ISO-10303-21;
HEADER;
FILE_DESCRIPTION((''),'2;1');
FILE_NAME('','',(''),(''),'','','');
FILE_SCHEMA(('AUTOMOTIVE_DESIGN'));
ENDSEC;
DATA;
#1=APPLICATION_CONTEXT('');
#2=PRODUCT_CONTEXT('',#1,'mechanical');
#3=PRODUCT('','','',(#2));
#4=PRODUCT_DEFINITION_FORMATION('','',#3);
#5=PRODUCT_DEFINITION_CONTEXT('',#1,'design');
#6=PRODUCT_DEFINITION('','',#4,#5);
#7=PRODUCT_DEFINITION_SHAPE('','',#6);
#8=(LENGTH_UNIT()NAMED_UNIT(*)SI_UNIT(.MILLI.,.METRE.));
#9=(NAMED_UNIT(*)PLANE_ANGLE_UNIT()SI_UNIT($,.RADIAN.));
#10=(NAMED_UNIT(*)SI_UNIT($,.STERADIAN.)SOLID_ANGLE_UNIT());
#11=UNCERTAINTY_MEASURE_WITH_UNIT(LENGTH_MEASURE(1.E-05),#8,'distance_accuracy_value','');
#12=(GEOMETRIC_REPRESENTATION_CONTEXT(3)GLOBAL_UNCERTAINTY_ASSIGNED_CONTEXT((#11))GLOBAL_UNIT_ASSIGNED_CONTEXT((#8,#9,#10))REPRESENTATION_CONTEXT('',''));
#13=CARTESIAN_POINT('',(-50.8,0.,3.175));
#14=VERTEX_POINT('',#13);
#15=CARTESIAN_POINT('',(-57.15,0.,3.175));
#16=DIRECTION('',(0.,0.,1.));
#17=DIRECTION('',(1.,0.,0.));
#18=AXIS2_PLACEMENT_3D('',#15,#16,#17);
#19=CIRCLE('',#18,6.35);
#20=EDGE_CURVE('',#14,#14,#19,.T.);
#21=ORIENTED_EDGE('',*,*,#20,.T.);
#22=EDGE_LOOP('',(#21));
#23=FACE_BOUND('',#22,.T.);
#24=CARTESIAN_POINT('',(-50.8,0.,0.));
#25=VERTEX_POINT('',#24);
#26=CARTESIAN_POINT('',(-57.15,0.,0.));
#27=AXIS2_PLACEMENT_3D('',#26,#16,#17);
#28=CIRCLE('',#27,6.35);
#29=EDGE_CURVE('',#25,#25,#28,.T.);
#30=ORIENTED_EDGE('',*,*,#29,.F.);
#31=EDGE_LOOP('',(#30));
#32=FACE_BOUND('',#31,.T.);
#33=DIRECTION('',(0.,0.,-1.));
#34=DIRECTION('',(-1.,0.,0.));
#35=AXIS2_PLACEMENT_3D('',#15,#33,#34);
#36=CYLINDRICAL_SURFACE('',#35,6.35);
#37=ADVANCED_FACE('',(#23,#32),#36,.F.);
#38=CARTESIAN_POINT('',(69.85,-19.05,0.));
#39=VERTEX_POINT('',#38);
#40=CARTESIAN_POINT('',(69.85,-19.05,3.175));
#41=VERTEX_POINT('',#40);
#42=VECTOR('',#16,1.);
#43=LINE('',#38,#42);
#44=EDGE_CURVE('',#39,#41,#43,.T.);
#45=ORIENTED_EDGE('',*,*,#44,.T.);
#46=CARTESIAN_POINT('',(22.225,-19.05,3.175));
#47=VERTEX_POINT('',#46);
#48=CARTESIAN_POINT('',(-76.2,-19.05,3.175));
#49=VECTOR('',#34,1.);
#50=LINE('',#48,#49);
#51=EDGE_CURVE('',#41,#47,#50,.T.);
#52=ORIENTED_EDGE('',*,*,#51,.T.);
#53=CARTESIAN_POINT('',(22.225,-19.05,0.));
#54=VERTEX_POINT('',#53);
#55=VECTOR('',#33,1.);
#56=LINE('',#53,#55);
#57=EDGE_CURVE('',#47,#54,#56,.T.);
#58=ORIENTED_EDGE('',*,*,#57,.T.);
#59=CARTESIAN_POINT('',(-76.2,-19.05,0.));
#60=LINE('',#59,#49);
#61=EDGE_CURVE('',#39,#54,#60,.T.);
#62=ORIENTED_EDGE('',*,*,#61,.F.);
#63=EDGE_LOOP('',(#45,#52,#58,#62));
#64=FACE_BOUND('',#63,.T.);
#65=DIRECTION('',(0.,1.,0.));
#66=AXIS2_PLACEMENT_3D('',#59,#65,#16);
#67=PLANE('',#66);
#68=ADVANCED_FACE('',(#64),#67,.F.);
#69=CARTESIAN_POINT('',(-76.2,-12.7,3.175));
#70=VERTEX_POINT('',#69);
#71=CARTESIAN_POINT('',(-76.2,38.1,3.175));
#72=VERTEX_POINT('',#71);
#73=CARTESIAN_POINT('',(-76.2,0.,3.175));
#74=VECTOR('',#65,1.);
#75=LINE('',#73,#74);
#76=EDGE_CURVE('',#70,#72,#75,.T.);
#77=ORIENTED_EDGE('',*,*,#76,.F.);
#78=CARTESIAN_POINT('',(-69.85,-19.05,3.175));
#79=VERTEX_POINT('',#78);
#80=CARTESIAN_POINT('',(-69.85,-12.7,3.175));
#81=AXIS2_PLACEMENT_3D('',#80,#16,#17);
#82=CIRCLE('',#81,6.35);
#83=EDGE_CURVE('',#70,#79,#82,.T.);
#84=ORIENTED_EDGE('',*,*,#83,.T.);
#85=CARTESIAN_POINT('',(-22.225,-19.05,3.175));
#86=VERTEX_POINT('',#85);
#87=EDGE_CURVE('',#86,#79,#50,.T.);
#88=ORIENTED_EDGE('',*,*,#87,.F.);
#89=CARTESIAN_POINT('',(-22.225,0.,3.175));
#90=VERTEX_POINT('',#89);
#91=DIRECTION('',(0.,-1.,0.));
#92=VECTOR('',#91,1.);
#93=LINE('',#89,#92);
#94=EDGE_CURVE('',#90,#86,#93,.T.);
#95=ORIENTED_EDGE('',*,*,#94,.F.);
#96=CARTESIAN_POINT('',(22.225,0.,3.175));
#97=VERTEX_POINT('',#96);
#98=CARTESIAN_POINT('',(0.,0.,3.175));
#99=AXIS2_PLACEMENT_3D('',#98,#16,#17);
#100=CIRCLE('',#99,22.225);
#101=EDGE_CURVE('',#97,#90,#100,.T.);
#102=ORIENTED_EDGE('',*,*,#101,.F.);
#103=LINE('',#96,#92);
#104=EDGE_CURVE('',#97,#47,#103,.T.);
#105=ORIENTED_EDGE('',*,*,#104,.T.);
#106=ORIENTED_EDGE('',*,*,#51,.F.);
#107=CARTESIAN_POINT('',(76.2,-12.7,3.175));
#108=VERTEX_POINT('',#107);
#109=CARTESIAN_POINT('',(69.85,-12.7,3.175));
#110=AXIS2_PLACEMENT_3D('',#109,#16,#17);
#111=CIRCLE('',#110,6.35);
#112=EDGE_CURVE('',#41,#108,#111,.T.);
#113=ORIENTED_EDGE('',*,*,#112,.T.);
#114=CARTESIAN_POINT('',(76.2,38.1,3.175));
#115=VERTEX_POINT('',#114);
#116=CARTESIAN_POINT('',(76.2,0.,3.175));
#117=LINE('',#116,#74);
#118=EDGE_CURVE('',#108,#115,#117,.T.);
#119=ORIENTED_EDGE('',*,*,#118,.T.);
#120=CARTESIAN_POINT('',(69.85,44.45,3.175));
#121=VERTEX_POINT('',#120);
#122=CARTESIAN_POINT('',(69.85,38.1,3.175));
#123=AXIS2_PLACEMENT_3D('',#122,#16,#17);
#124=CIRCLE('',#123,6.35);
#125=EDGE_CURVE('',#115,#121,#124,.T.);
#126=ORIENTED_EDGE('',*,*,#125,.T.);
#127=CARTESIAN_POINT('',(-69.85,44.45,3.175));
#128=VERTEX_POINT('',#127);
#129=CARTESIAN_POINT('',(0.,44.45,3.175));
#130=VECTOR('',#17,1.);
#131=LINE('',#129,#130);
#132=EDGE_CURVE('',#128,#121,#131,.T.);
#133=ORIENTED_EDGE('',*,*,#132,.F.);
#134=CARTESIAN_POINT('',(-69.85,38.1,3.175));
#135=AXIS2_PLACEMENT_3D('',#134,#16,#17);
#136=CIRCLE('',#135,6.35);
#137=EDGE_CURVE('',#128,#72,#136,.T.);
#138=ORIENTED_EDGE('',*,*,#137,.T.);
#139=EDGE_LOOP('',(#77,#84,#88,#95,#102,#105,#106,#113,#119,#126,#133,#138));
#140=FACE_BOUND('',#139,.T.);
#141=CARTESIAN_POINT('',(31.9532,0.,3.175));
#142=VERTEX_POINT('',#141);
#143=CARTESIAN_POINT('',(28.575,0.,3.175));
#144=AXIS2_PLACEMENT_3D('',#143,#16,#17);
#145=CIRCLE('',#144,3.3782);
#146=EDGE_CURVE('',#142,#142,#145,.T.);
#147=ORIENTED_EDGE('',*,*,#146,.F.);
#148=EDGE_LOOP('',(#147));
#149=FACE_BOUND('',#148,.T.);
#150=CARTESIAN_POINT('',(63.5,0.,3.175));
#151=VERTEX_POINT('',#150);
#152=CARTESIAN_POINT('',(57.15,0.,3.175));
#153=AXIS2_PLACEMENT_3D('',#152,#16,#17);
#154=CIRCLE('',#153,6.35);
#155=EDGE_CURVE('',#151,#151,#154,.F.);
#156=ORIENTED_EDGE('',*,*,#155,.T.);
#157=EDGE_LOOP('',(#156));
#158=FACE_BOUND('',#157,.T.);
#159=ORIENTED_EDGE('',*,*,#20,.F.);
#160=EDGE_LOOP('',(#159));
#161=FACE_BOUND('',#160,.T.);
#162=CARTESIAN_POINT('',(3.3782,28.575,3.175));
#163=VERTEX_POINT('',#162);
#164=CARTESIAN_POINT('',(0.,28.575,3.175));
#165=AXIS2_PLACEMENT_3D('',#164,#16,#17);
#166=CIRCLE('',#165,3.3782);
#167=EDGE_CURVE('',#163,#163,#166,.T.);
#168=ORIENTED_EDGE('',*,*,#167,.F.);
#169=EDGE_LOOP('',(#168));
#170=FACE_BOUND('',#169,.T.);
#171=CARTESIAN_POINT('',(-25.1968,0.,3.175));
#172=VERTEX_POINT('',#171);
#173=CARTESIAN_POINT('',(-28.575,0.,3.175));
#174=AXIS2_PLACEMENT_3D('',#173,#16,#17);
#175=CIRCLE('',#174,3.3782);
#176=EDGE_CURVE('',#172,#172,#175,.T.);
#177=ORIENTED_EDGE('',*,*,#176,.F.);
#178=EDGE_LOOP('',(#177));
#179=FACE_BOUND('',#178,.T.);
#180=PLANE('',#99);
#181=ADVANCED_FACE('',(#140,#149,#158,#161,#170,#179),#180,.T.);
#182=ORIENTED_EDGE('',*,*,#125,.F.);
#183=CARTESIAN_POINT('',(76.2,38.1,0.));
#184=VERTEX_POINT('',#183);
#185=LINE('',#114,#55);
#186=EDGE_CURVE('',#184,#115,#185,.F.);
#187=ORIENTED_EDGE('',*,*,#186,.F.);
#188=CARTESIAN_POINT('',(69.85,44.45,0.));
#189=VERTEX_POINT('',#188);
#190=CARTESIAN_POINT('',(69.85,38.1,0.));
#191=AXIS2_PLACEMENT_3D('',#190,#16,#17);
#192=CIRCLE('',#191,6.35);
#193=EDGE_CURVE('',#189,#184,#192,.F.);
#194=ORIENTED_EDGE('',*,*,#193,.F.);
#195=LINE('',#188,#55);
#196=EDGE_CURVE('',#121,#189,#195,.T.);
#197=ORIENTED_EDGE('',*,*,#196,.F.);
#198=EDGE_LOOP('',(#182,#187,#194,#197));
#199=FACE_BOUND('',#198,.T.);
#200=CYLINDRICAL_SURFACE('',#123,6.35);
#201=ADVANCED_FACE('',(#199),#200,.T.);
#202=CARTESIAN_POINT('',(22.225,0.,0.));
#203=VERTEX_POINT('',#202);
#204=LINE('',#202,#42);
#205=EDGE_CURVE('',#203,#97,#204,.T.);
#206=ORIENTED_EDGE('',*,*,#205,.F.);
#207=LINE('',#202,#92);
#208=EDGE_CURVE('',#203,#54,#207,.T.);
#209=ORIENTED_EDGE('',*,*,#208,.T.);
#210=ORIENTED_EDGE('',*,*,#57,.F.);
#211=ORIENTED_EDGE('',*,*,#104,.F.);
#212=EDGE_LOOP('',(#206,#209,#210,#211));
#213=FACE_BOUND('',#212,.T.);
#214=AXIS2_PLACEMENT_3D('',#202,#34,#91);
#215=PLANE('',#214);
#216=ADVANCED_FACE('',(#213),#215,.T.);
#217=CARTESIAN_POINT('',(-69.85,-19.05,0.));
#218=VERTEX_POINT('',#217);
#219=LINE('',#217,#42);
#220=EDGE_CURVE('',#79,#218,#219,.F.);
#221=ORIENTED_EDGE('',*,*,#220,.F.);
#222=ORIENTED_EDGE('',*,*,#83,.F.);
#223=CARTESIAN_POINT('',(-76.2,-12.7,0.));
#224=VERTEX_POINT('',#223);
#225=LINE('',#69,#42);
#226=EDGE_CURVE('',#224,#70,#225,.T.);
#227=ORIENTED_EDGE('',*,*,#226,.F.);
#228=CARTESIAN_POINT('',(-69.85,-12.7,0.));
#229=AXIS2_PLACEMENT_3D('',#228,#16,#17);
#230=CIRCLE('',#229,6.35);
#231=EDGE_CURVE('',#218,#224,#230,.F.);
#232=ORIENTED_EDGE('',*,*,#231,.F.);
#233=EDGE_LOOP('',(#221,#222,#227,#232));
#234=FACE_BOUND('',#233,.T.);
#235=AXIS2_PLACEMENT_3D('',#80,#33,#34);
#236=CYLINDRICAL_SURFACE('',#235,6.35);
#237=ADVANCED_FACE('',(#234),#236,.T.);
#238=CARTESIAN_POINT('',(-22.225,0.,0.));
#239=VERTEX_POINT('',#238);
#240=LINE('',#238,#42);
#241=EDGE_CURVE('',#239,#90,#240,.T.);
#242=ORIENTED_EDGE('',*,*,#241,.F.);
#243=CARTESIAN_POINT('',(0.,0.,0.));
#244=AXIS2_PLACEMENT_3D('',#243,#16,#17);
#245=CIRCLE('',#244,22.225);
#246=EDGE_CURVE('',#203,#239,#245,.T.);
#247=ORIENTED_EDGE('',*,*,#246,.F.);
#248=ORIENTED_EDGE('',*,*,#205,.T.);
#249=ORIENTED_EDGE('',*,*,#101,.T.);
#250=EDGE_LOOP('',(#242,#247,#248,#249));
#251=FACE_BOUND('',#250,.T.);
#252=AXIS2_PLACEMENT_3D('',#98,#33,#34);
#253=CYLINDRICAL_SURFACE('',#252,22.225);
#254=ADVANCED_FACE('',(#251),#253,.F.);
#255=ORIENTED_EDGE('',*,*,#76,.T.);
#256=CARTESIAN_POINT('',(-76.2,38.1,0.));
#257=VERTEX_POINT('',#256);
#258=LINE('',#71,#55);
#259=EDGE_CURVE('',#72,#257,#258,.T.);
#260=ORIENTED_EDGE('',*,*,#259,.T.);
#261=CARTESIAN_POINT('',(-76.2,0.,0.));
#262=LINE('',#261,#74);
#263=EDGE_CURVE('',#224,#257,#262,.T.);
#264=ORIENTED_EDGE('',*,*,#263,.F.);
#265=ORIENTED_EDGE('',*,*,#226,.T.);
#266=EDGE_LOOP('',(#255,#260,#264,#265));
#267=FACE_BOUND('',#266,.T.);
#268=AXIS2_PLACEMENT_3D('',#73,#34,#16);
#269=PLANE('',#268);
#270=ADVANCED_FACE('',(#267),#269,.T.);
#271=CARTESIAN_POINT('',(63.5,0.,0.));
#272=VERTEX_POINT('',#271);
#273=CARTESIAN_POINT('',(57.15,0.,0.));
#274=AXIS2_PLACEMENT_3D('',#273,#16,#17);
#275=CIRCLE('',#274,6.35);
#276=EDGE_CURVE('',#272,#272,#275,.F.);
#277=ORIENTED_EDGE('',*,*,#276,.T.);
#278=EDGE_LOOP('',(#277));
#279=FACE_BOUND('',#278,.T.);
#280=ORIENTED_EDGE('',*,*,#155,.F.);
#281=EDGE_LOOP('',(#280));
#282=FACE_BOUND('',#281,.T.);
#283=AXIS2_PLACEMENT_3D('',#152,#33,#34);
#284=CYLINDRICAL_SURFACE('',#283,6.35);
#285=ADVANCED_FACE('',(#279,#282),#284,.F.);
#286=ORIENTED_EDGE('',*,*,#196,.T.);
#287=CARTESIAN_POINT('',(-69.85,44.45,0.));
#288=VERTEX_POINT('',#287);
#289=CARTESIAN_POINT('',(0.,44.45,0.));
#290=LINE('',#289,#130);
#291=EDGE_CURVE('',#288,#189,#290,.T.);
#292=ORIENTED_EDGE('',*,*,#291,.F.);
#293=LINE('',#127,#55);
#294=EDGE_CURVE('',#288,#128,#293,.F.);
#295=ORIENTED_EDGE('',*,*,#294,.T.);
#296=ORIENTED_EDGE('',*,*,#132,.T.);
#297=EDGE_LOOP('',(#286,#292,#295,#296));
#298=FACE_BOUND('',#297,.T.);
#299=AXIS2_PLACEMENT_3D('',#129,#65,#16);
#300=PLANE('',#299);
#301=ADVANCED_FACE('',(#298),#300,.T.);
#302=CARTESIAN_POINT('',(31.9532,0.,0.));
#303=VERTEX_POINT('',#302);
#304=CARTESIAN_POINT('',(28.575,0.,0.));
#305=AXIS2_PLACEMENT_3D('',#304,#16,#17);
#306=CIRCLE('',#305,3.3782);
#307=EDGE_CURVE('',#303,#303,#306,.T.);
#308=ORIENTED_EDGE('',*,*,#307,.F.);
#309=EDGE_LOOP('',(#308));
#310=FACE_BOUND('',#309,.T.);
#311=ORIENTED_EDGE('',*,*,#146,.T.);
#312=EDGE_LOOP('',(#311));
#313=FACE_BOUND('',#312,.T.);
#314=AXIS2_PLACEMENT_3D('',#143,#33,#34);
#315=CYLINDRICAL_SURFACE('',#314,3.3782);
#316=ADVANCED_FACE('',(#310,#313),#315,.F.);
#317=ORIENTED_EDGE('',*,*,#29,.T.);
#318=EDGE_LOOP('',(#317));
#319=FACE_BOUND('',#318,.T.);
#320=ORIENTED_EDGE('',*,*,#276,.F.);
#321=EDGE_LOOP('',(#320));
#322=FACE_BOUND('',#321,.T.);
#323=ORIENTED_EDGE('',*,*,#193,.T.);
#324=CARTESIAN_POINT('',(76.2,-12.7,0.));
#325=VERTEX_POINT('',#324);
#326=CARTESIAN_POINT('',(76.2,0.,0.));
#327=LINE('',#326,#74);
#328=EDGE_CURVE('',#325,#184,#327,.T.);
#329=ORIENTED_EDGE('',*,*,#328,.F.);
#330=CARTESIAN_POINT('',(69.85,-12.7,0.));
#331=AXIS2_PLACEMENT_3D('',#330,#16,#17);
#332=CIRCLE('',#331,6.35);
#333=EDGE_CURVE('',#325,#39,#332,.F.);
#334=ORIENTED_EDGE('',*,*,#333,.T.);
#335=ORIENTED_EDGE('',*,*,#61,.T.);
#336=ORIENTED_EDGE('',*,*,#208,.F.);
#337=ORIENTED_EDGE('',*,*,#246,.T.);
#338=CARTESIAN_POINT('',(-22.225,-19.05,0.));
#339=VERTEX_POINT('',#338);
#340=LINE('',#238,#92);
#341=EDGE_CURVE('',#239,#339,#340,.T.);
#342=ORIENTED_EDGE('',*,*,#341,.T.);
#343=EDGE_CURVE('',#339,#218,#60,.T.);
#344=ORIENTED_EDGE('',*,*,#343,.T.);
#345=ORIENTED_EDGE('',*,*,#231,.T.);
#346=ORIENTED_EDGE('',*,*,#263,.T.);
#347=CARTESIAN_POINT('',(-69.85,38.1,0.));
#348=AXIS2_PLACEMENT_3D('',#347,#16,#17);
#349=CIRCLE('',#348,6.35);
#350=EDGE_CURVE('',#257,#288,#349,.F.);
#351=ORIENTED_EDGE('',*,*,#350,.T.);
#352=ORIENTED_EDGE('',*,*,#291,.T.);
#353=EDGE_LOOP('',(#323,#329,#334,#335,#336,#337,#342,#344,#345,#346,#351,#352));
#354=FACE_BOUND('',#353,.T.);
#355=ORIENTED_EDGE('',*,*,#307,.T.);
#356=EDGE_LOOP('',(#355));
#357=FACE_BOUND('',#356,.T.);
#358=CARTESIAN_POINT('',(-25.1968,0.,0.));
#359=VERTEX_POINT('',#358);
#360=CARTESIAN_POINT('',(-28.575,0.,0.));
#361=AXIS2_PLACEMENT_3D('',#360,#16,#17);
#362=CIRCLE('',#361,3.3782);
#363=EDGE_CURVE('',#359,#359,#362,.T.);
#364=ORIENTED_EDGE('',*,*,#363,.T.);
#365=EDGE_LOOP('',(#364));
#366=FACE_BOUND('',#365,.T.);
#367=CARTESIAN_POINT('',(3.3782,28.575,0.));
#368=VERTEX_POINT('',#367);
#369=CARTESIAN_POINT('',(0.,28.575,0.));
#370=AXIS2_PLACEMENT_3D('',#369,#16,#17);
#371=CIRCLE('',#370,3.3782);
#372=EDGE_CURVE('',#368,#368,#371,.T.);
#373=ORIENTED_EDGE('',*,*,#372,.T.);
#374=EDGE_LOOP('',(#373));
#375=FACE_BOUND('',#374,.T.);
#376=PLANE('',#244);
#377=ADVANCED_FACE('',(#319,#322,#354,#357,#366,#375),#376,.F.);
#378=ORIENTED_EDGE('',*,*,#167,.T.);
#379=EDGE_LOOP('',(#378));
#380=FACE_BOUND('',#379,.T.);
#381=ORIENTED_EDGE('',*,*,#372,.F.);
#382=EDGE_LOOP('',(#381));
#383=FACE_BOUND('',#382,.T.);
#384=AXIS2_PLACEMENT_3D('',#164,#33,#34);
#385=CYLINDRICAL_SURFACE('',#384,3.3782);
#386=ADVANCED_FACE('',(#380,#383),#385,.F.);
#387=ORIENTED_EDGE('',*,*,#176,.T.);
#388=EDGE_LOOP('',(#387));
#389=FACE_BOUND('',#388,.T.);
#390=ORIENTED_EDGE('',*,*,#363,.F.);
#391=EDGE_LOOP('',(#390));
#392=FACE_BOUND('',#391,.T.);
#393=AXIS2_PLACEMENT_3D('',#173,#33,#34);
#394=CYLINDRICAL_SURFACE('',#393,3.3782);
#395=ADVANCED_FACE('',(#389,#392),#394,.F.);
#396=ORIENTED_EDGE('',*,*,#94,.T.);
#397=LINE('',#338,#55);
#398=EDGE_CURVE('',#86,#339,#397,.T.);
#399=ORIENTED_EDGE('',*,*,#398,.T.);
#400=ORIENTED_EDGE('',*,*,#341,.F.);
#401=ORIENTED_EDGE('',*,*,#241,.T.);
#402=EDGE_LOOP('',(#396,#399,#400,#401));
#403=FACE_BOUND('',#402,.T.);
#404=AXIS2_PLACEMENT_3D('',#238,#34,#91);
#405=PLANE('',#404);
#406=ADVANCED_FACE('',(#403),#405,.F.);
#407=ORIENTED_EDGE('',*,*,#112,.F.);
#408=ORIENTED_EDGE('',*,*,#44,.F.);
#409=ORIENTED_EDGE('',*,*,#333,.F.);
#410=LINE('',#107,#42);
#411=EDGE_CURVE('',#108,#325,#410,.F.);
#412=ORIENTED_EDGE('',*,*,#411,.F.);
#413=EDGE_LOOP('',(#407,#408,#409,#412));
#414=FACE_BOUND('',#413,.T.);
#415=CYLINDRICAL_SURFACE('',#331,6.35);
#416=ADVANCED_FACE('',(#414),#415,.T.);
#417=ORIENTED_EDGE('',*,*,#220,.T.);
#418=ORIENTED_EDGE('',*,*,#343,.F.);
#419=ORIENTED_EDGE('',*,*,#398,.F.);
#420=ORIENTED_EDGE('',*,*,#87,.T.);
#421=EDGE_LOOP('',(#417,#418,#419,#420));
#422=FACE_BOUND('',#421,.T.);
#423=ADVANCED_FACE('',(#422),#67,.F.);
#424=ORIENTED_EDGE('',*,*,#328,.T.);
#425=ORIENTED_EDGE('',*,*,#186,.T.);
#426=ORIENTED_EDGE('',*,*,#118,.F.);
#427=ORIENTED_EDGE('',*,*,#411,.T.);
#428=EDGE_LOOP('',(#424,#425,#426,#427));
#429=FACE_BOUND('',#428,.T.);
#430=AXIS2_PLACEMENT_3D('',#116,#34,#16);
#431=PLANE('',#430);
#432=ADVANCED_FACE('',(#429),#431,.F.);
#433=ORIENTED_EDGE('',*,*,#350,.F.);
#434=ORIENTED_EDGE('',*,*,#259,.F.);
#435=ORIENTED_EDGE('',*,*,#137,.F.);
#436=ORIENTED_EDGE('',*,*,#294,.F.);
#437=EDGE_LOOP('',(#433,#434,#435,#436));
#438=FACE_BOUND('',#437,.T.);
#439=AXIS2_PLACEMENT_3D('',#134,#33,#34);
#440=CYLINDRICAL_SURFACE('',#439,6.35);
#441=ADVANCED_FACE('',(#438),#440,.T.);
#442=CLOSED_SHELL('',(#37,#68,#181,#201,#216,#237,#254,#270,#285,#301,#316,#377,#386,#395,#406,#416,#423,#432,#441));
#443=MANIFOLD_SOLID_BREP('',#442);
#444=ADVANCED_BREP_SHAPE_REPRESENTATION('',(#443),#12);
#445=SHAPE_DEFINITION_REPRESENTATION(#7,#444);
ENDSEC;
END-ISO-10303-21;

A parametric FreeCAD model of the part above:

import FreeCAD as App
import Part
import Sketcher

V = App.Vector
Q = App.Units.Quantity


def edges_at(feature, points):
    """Names of the edges that pass closest to the given points."""
    edges = feature.Shape.Edges
    near = lambda p: min(range(len(edges)), key=lambda i: edges[i].distToShape(Part.Vertex(*p))[0])
    return sorted({f"Edge{near(p) + 1}" for p in points})


def add_polygon(sketch, points):
    """Adds a closed chain of lines whose ends are joined by coincident constraints."""
    first, n = sketch.GeometryCount, len(points)
    for a, b in zip(points, points[1:] + points[:1]):
        sketch.addGeometry(Part.LineSegment(App.Vector(*a, 0), App.Vector(*b, 0)), False)
    for i in range(n):
        sketch.addConstraint(Sketcher.Constraint("Coincident", first + i, 2, first + (i + 1) % n, 1))

doc = App.newDocument("Part")
body = doc.addObject("PartDesign::Body", "Body")

sketch1 = doc.addObject("Sketcher::SketchObject", "Sketch")
body.addObject(sketch1)
sketch1.AttachmentSupport = (doc.XY_Plane, [""])
sketch1.MapMode = "FlatFace"
add_polygon(sketch1, [(-76.2, 44.5), (-76.2, -44.5), (76.2, -44.5), (76.2, 44.5)])
sketch1.addGeometry(Part.Circle(V(0, -28.6, 0), V(0, 0, 1), 3.4), False)
sketch1.addGeometry(Part.Circle(V(-57.1, 0, 0), V(0, 0, 1), 6.3), False)
sketch1.addGeometry(Part.Circle(V(-28.6, 0, 0), V(0, 0, 1), 3.4), False)
sketch1.addGeometry(Part.Circle(V(0, 0, 0), V(0, 0, 1), 22.2), False)
sketch1.addGeometry(Part.Circle(V(28.6, 0, 0), V(0, 0, 1), 3.4), False)
sketch1.addGeometry(Part.Circle(V(57.1, 0, 0), V(0, 0, 1), 6.3), False)
sketch1.addGeometry(Part.Circle(V(0, 28.6, 0), V(0, 0, 1), 3.4), False)
sketch1.addConstraint([
    Sketcher.Constraint("Vertical", 0),
    Sketcher.Constraint("Horizontal", 1),
    Sketcher.Constraint("Vertical", 2),
    Sketcher.Constraint("Horizontal", 3),
    Sketcher.Constraint("Coincident", 7, 3, -1, 1),
    Sketcher.Constraint("Equal", 4, 6),
    Sketcher.Constraint("Equal", 6, 8),
    Sketcher.Constraint("Equal", 5, 9),
    Sketcher.Constraint("Equal", 8, 10),
    Sketcher.Constraint("Symmetric", 6, 3, 8, 3, -1, 1),
    Sketcher.Constraint("Symmetric", 5, 3, 9, 3, -1, 1),
    Sketcher.Constraint("Symmetric", 4, 3, 10, 3, -1, 1),
    Sketcher.Constraint("Symmetric", 0, 2, 2, 2, -1, 1),
    Sketcher.Constraint("PointOnObject", 4, 3, -2),
    Sketcher.Constraint("PointOnObject", 5, 3, -1),
    Sketcher.Constraint("PointOnObject", 6, 3, -1),
    Sketcher.Constraint("Diameter", 5, Q("0.5 in")),
    Sketcher.Constraint("Diameter", 7, Q("1.75 in")),
    Sketcher.Constraint("DistanceX", 1, 1, 1, 2, Q("6 in")),
    Sketcher.Constraint("Diameter", 4, Q("0.266 in")),
    Sketcher.Constraint("DistanceY", 0, 2, 0, 1, Q("3.5 in")),
    Sketcher.Constraint("DistanceX", 5, 3, 9, 3, Q("4.5 in")),
    Sketcher.Constraint("DistanceX", 6, 3, 8, 3, Q("2.25 in")),
    Sketcher.Constraint("DistanceY", 4, 3, 10, 3, Q("2.25 in")),
])
pad1 = doc.addObject("PartDesign::Pad", "Pad")
body.addObject(pad1)
pad1.Profile = sketch1
pad1.Length = Q("0.125 in")

sketch2 = doc.addObject("Sketcher::SketchObject", "Sketch001")
body.addObject(sketch2)
sketch2.AttachmentSupport = (doc.XY_Plane, [""])
sketch2.MapMode = "FlatFace"
sketch2.AttachmentOffset = App.Placement(V(0, 0, 0.125 * 25.4), App.Rotation())
add_polygon(sketch2, [(-28.6, -20.3), (-28.6, -44.5), (28.6, -44.5), (28.6, -20.3), (22.2, -20.3), (22.2, 0), (-22.2, 0), (-22.2, -20.3)])
sketch2.addGeometry(Part.Circle(V(0, -28.6, 0), V(0, 0, 1), 3.4), False)
sketch2.addConstraint([
    Sketcher.Constraint("Vertical", 0),
    Sketcher.Constraint("Horizontal", 1),
    Sketcher.Constraint("Vertical", 2),
    Sketcher.Constraint("Horizontal", 3),
    Sketcher.Constraint("Vertical", 4),
    Sketcher.Constraint("Horizontal", 5),
    Sketcher.Constraint("Vertical", 6),
    Sketcher.Constraint("Horizontal", 7),
    Sketcher.Constraint("Symmetric", 4, 2, 5, 2, -1, 1),
    Sketcher.Constraint("Symmetric", 2, 2, 7, 2, -2),
    Sketcher.Constraint("PointOnObject", 8, 3, -2),
    Sketcher.Constraint("Diameter", 8, Q("0.266 in")),
    Sketcher.Constraint("DistanceY", 4, 1, 4, 2, Q("0.8 in")),
    Sketcher.Constraint("DistanceX", 0, 2, 3, 2, Q("2 in")),
    Sketcher.Constraint("DistanceX", 1, 1, 1, 2, Q("2.25 in")),
    Sketcher.Constraint("DistanceY", 0, 2, 0, 1, Q("0.95 in")),
    Sketcher.Constraint("DistanceY", 8, 3, -1, 1, Q("1.125 in")),
])
pocket1 = doc.addObject("PartDesign::Pocket", "Pocket")
body.addObject(pocket1)
pocket1.Profile = sketch2
pocket1.Type = "ThroughAll"

sketch3 = doc.addObject("Sketcher::SketchObject", "Sketch002")
body.addObject(sketch3)
sketch3.AttachmentSupport = (doc.XY_Plane, [""])
sketch3.MapMode = "FlatFace"
sketch3.AttachmentOffset = App.Placement(V(0, 0, 0.125 * 25.4), App.Rotation())
add_polygon(sketch3, [(-76, -19), (-76, -44), (76, -44), (76, -19)])
sketch3.addConstraint([
    Sketcher.Constraint("Vertical", 0),
    Sketcher.Constraint("Horizontal", 1),
    Sketcher.Constraint("Vertical", 2),
    Sketcher.Constraint("Horizontal", 3),
    Sketcher.Constraint("DistanceX", 1, 1, 1, 2, Q("6 in")),
    Sketcher.Constraint("DistanceY", 0, 2, 0, 1, Q("1 in")),
    Sketcher.Constraint("DistanceX", 0, 2, -1, 1, Q("3 in")),
    Sketcher.Constraint("DistanceY", 0, 2, -1, 1, Q("1.75 in")),
])
pocket2 = doc.addObject("PartDesign::Pocket", "Pocket001")
body.addObject(pocket2)
pocket2.Profile = sketch3
pocket2.Type = "ThroughAll"
doc.recompute()

fillet = doc.addObject("PartDesign::Fillet", "Fillet")
body.addObject(fillet)
fillet.Base = (pocket2, edges_at(pocket2, [
    (-76.2, 44.45, 1.587),
    (76.2, 44.45, 1.587),
    (-76.2, -19.05, 1.587),
    (76.2, -19.05, 1.587),
]))
fillet.Radius = Q("0.25 in")

doc.recompute()
